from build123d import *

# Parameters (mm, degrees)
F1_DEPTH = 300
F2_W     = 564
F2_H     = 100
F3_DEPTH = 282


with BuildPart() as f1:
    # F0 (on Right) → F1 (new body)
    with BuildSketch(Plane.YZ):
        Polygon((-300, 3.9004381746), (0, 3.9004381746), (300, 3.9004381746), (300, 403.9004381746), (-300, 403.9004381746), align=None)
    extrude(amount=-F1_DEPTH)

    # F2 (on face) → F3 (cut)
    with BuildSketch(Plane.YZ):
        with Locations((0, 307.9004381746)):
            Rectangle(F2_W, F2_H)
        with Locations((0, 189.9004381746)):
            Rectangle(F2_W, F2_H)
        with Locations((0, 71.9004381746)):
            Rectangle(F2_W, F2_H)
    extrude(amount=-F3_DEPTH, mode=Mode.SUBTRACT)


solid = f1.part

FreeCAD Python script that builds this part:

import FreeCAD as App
import Part
import Sketcher
from FreeCAD import Vector
Q = App.Units.Quantity

doc = App.newDocument("Part")
body = doc.addObject("PartDesign::Body", "Body")

# Sketch on YZ plane
sketch1 = doc.addObject("Sketcher::SketchObject", "Sketch")
body.addObject(sketch1)
sketch1.AttachmentSupport = (doc.YZ_Plane, [""])
sketch1.MapMode = "FlatFace"
sketch1.addGeometry([
    Part.LineSegment(Vector(-300, 4, 0), Vector(300, 4, 0)),
    Part.LineSegment(Vector(300, 4, 0), Vector(300, 404, 0)),
    Part.LineSegment(Vector(300, 404, 0), Vector(-300, 404, 0)),
    Part.LineSegment(Vector(-300, 404, 0), Vector(-300, 4, 0)),
], False)
sketch1.addConstraint([
    Sketcher.Constraint("Coincident", 0, 2, 1, 1),
    Sketcher.Constraint("Coincident", 1, 2, 2, 1),
    Sketcher.Constraint("Coincident", 2, 2, 3, 1),
    Sketcher.Constraint("Coincident", 3, 2, 0, 1),
    Sketcher.Constraint("Horizontal", 0),
    Sketcher.Constraint("Vertical", 1),
    Sketcher.Constraint("Horizontal", 2),
    Sketcher.Constraint("Vertical", 3),
    Sketcher.Constraint("DistanceX", 0, 1, 0, 2, Q("600 mm")),
    Sketcher.Constraint("DistanceY", 1, 1, 1, 2, Q("400 mm")),
    Sketcher.Constraint("DistanceX", -1, 1, 0, 2, Q("300 mm")),
    Sketcher.Constraint("DistanceY", -1, 1, 0, 2, Q("3.900438 mm")),
])
pad1 = doc.addObject("PartDesign::Pad", "Pad")
body.addObject(pad1)
pad1.Profile = sketch1
pad1.Length = 300
pad1.Reversed = True

# Sketch on YZ plane
sketch2 = doc.addObject("Sketcher::SketchObject", "Sketch001")
body.addObject(sketch2)
sketch2.AttachmentSupport = (doc.YZ_Plane, [""])
sketch2.MapMode = "FlatFace"
sketch2.addGeometry([
    Part.LineSegment(Vector(-282, 358, 0), Vector(-282, 258, 0)),  # 0
    Part.LineSegment(Vector(-282, 258, 0), Vector(282, 258, 0)),  # 1
    Part.LineSegment(Vector(282, 258, 0), Vector(282, 358, 0)),  # 2
    Part.LineSegment(Vector(282, 358, 0), Vector(-282, 358, 0)),  # 3
    Part.LineSegment(Vector(-282, 240, 0), Vector(-282, 140, 0)),  # 4
    Part.LineSegment(Vector(-282, 140, 0), Vector(282, 140, 0)),  # 5
    Part.LineSegment(Vector(282, 140, 0), Vector(282, 240, 0)),  # 6
    Part.LineSegment(Vector(282, 240, 0), Vector(-282, 240, 0)),  # 7
    Part.LineSegment(Vector(-282, 122, 0), Vector(-282, 22, 0)),  # 8
    Part.LineSegment(Vector(-282, 22, 0), Vector(282, 22, 0)),  # 9
    Part.LineSegment(Vector(282, 22, 0), Vector(282, 122, 0)),  # 10
    Part.LineSegment(Vector(282, 122, 0), Vector(-282, 122, 0)),  # 11
], False)
sketch2.addConstraint([
    Sketcher.Constraint("Coincident", 0, 2, 1, 1),
    Sketcher.Constraint("Coincident", 1, 2, 2, 1),
    Sketcher.Constraint("Coincident", 2, 2, 3, 1),
    Sketcher.Constraint("Coincident", 3, 2, 0, 1),
    Sketcher.Constraint("Coincident", 4, 2, 5, 1),
    Sketcher.Constraint("Coincident", 5, 2, 6, 1),
    Sketcher.Constraint("Coincident", 6, 2, 7, 1),
    Sketcher.Constraint("Coincident", 7, 2, 4, 1),
    Sketcher.Constraint("Coincident", 8, 2, 9, 1),
    Sketcher.Constraint("Coincident", 9, 2, 10, 1),
    Sketcher.Constraint("Coincident", 10, 2, 11, 1),
    Sketcher.Constraint("Coincident", 11, 2, 8, 1),
    Sketcher.Constraint("Vertical", 0),
    Sketcher.Constraint("Horizontal", 1),
    Sketcher.Constraint("Vertical", 2),
    Sketcher.Constraint("Horizontal", 3),
    Sketcher.Constraint("Vertical", 4),
    Sketcher.Constraint("Horizontal", 5),
    Sketcher.Constraint("Vertical", 6),
    Sketcher.Constraint("Horizontal", 7),
    Sketcher.Constraint("Vertical", 8),
    Sketcher.Constraint("Horizontal", 9),
    Sketcher.Constraint("Vertical", 10),
    Sketcher.Constraint("Horizontal", 11),
    Sketcher.Constraint("Vertical", 3, 2, 4, 2),
    Sketcher.Constraint("Vertical", 2, 2, 5, 2),
    Sketcher.Constraint("Vertical", 7, 2, 8, 2),
    Sketcher.Constraint("Vertical", 6, 2, 9, 2),
    Sketcher.Constraint("Equal", 2, 4),
    Sketcher.Constraint("Equal", 6, 8),
    Sketcher.Constraint("DistanceX", 1, 1, 1, 2, Q("564 mm")),
    Sketcher.Constraint("DistanceY", 0, 2, 0, 1, Q("100 mm")),
    Sketcher.Constraint("DistanceX", 0, 2, -1, 1, Q("282 mm")),
    Sketcher.Constraint("DistanceY", 4, 2, 0, 2, Q("118 mm")),
    Sketcher.Constraint("DistanceY", 8, 2, 4, 2, Q("118 mm")),
    Sketcher.Constraint("DistanceY", -1, 1, 0, 2, Q("257.900438 mm")),
])
pocket1 = doc.addObject("PartDesign::Pocket", "Pocket")
body.addObject(pocket1)
pocket1.Profile = sketch2
pocket1.Length = 282

doc.recompute()
